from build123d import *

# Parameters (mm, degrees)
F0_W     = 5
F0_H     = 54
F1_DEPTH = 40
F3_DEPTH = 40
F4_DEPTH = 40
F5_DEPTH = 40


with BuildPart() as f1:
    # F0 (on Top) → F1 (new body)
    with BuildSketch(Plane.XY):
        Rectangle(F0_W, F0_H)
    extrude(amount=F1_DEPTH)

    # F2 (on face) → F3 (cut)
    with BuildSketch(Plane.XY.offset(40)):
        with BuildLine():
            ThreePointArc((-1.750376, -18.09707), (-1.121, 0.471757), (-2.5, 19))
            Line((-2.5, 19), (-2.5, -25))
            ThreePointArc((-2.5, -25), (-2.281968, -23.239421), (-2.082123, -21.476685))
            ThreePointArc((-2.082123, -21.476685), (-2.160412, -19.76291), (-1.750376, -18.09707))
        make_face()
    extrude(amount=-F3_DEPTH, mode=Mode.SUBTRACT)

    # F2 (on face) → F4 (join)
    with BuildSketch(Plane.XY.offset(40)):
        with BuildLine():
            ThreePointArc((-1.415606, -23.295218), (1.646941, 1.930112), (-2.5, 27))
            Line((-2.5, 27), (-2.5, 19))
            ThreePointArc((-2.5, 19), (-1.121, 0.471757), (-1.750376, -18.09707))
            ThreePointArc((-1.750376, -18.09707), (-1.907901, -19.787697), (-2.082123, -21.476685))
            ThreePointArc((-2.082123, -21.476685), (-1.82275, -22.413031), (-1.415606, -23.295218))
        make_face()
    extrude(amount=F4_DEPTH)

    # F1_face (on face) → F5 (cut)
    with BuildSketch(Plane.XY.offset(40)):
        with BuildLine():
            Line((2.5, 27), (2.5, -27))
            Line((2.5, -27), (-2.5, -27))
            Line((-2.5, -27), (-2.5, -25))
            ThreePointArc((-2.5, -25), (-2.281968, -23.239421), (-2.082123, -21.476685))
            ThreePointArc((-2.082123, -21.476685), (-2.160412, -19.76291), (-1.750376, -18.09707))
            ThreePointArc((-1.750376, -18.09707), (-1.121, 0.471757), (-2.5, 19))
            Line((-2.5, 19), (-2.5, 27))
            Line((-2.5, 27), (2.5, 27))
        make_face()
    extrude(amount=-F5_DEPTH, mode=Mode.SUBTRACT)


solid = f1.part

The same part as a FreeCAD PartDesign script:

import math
import FreeCAD as App
import Part
import Sketcher

V = App.Vector

doc = App.newDocument("Part")
body = doc.addObject("PartDesign::Body", "Body")

sketch1 = body.newObject("Sketcher::SketchObject", "Sketch")
sketch1.AttachmentSupport = (doc.getObject("XY_Plane"), [""])
sketch1.MapMode = "FlatFace"
sketch1.addGeometry([
    Part.LineSegment(V(-2, 27, 0), V(-2, -27, 0)),
    Part.LineSegment(V(-2, -27, 0), V(2, -27, 0)),
    Part.LineSegment(V(2, -27, 0), V(2, 27, 0)),
    Part.LineSegment(V(2, 27, 0), V(-2, 27, 0)),
], False)
sketch1.addConstraint([
    Sketcher.Constraint("Coincident", 0, 2, 1, 1),
    Sketcher.Constraint("Coincident", 1, 2, 2, 1),
    Sketcher.Constraint("Coincident", 2, 2, 3, 1),
    Sketcher.Constraint("Coincident", 3, 2, 0, 1),
    Sketcher.Constraint("Vertical", 0),
    Sketcher.Constraint("Horizontal", 1),
    Sketcher.Constraint("Vertical", 2),
    Sketcher.Constraint("Horizontal", 3),
    Sketcher.Constraint("Symmetric", 0, 2, 2, 2, -1, 1),
    Sketcher.Constraint("DistanceX", 1, 1, 1, 2, 5.0),
    Sketcher.Constraint("DistanceY", 0, 2, 0, 1, 54.0),
])
pad1 = body.newObject("PartDesign::Pad", "Pad")
pad1.Profile = sketch1
pad1.Length = 40

sketch2 = body.newObject("Sketcher::SketchObject", "Sketch001")
sketch2.AttachmentSupport = (doc.getObject("XY_Plane"), [""])
sketch2.MapMode = "FlatFace"
sketch2.AttachmentOffset = App.Placement(V(0, 0, 40), App.Rotation())
sketch2.addGeometry([
    Part.ArcOfCircle(Part.Circle(V(-172.9, -3, 0), V(0, 0, 1), 171.8), math.radians(-5.04), math.radians(7.36)),
    Part.LineSegment(V(-2.5, 19, 0), V(-2.5, -25, 0)),
    Part.ArcOfCircle(Part.Circle(V(-172.9, -3, 0), V(0, 0, 1), 171.8), math.radians(-7.36), math.radians(-6.17)),
    Part.ArcOfCircle(Part.Circle(V(3.8, -20.3, 0), V(0, 0, 1), 6), math.radians(158), math.radians(191)),
], False)
sketch2.addConstraint([
    Sketcher.Constraint("Coincident", 0, 2, 1, 1),
    Sketcher.Constraint("Coincident", 1, 2, 2, 1),
    Sketcher.Constraint("Coincident", 2, 2, 3, 2),
    Sketcher.Constraint("Coincident", 3, 1, 0, 1),
    Sketcher.Constraint("Vertical", 1),
    Sketcher.Constraint("DistanceY", 1, 2, 1, 1, 44.0),
    Sketcher.Constraint("DistanceY", 0, 3, -1, 1, 2.999999),
    Sketcher.Constraint("DistanceY", -1, 1, 0, 2, 19.0),
    Sketcher.Constraint("DistanceX", 0, 2, -1, 1, 2.5),
    Sketcher.Constraint("Radius", 0, 171.84381),
    Sketcher.Constraint("Radius", 2, 171.84102),
    Sketcher.Constraint("Radius", 3, 5.998208),
    Sketcher.Constraint("DistanceY", 2, 2, 3, 3, 1.1278),
    Sketcher.Constraint("DistanceX", 2, 3, -1, 1, 172.926968),
    Sketcher.Constraint("DistanceY", 3, 1, -1, 1, 18.09707),
])
pocket1 = body.newObject("PartDesign::Pocket", "Pocket")
pocket1.Profile = sketch2
pocket1.Length = 40

sketch3 = body.newObject("Sketcher::SketchObject", "Sketch002")
sketch3.AttachmentSupport = (doc.getObject("XY_Plane"), [""])
sketch3.MapMode = "FlatFace"
sketch3.AttachmentOffset = App.Placement(V(0, 0, 40), App.Rotation())
sketch3.addGeometry([
    Part.ArcOfCircle(Part.Circle(V(-87.9, 0, 0), V(0, 0, 1), 89.5), math.radians(-15), math.radians(18)),
    Part.LineSegment(V(-2.5, 27, 0), V(-2.5, 19, 0)),
    Part.ArcOfCircle(Part.Circle(V(-172.9, -3, 0), V(0, 0, 1), 171.8), math.radians(-5.04), math.radians(7.36)),
    Part.ArcOfCircle(Part.Circle(V(-172.9, -3, 0), V(0, 0, 1), 171.8), math.radians(-6.17), math.radians(-5.04)),
    Part.ArcOfCircle(Part.Circle(V(3.8, -20.3, 0), V(0, 0, 1), 6), math.radians(-169.16), math.radians(-150.58)),
], False)
sketch3.addConstraint([
    Sketcher.Constraint("Coincident", 0, 2, 1, 1),
    Sketcher.Constraint("Coincident", 1, 2, 2, 2),
    Sketcher.Constraint("Tangent", 2, 1, 3, 2),
    Sketcher.Constraint("Coincident", 3, 1, 4, 1),
    Sketcher.Constraint("Coincident", 4, 2, 0, 1),
    Sketcher.Constraint("Vertical", 1),
    Sketcher.Constraint("PointOnObject", 0, 3, -1),
    Sketcher.Constraint("DistanceY", 1, 2, 1, 1, 8.0),
    Sketcher.Constraint("DistanceY", 2, 3, -1, 1, 2.999999),
    Sketcher.Constraint("DistanceY", -1, 1, 0, 2, 27.0),
    Sketcher.Constraint("DistanceX", 0, 2, -1, 1, 2.5),
    Sketcher.Constraint("Radius", 2, 171.84381),
    Sketcher.Constraint("Radius", 3, 171.841852),
    Sketcher.Constraint("Radius", 4, 5.998221),
    Sketcher.Constraint("Radius", 0, 89.541228),
    Sketcher.Constraint("DistanceX", 0, 3, 4, 3, 91.682599),
    Sketcher.Constraint("DistanceY", 2, 1, -1, 1, 18.09707),
    Sketcher.Constraint("DistanceX", 3, 1, 4, 3, 5.89124),
])
pad2 = body.newObject("PartDesign::Pad", "Pad001")
pad2.Profile = sketch3
pad2.Length = 40

sketch4 = body.newObject("Sketcher::SketchObject", "Sketch003")
sketch4.AttachmentSupport = (doc.getObject("XY_Plane"), [""])
sketch4.MapMode = "FlatFace"
sketch4.AttachmentOffset = App.Placement(V(0, 0, 40), App.Rotation())
sketch4.addGeometry([
    Part.LineSegment(V(2.5, -27, 0), V(2.5, 27, 0)),
    Part.LineSegment(V(2.5, 27, 0), V(-2.5, 27, 0)),
    Part.LineSegment(V(-2.5, 27, 0), V(-2.5, 19, 0)),
    Part.ArcOfCircle(Part.Circle(V(-172.9, -3, 0), V(0, 0, 1), 171.8), math.radians(-5.04), math.radians(7.36)),
    Part.ArcOfCircle(Part.Circle(V(3.8, -20.3, 0), V(0, 0, 1), 6), math.radians(158), math.radians(191)),
    Part.ArcOfCircle(Part.Circle(V(-172.9, -3, 0), V(0, 0, 1), 171.8), math.radians(-7.36), math.radians(-6.17)),
    Part.LineSegment(V(-2.5, -25, 0), V(-2.5, -27, 0)),
    Part.LineSegment(V(-2.5, -27, 0), V(2.5, -27, 0)),
], False)
sketch4.addConstraint([
    Sketcher.Constraint("Coincident", 0, 2, 1, 1),
    Sketcher.Constraint("Coincident", 1, 2, 2, 1),
    Sketcher.Constraint("Coincident", 2, 2, 3, 2),
    Sketcher.Constraint("Coincident", 3, 1, 4, 1),
    Sketcher.Constraint("Coincident", 4, 2, 5, 2),
    Sketcher.Constraint("Coincident", 5, 1, 6, 1),
    Sketcher.Constraint("Coincident", 6, 2, 7, 1),
    Sketcher.Constraint("Coincident", 7, 2, 0, 1),
    Sketcher.Constraint("Vertical", 0),
    Sketcher.Constraint("Horizontal", 1),
    Sketcher.Constraint("Vertical", 2),
    Sketcher.Constraint("Vertical", 6),
    Sketcher.Constraint("Horizontal", 7),
    Sketcher.Constraint("Symmetric", 0, 2, 6, 2, -1, 1),
    Sketcher.Constraint("Vertical", 2, 2, 5, 1),
    Sketcher.Constraint("DistanceX", 1, 2, 1, 1, 5.0),
    Sketcher.Constraint("DistanceY", 0, 1, 0, 2, 54.0),
    Sketcher.Constraint("DistanceY", 2, 2, 2, 1, 8.0),
    Sketcher.Constraint("DistanceY", 6, 2, 6, 1, 2.0),
    Sketcher.Constraint("DistanceY", 3, 3, -1, 1, 2.999999),
    Sketcher.Constraint("Radius", 3, 171.84381),
    Sketcher.Constraint("Radius", 4, 5.998208),
    Sketcher.Constraint("Radius", 5, 171.84102),
    Sketcher.Constraint("DistanceY", 4, 2, 4, 3, 1.1278),
    Sketcher.Constraint("DistanceX", 5, 3, -1, 1, 172.926968),
    Sketcher.Constraint("DistanceY", 3, 1, -1, 1, 18.09707),
])
pocket2 = body.newObject("PartDesign::Pocket", "Pocket001")
pocket2.Profile = sketch4
pocket2.Length = 40

doc.recompute()
